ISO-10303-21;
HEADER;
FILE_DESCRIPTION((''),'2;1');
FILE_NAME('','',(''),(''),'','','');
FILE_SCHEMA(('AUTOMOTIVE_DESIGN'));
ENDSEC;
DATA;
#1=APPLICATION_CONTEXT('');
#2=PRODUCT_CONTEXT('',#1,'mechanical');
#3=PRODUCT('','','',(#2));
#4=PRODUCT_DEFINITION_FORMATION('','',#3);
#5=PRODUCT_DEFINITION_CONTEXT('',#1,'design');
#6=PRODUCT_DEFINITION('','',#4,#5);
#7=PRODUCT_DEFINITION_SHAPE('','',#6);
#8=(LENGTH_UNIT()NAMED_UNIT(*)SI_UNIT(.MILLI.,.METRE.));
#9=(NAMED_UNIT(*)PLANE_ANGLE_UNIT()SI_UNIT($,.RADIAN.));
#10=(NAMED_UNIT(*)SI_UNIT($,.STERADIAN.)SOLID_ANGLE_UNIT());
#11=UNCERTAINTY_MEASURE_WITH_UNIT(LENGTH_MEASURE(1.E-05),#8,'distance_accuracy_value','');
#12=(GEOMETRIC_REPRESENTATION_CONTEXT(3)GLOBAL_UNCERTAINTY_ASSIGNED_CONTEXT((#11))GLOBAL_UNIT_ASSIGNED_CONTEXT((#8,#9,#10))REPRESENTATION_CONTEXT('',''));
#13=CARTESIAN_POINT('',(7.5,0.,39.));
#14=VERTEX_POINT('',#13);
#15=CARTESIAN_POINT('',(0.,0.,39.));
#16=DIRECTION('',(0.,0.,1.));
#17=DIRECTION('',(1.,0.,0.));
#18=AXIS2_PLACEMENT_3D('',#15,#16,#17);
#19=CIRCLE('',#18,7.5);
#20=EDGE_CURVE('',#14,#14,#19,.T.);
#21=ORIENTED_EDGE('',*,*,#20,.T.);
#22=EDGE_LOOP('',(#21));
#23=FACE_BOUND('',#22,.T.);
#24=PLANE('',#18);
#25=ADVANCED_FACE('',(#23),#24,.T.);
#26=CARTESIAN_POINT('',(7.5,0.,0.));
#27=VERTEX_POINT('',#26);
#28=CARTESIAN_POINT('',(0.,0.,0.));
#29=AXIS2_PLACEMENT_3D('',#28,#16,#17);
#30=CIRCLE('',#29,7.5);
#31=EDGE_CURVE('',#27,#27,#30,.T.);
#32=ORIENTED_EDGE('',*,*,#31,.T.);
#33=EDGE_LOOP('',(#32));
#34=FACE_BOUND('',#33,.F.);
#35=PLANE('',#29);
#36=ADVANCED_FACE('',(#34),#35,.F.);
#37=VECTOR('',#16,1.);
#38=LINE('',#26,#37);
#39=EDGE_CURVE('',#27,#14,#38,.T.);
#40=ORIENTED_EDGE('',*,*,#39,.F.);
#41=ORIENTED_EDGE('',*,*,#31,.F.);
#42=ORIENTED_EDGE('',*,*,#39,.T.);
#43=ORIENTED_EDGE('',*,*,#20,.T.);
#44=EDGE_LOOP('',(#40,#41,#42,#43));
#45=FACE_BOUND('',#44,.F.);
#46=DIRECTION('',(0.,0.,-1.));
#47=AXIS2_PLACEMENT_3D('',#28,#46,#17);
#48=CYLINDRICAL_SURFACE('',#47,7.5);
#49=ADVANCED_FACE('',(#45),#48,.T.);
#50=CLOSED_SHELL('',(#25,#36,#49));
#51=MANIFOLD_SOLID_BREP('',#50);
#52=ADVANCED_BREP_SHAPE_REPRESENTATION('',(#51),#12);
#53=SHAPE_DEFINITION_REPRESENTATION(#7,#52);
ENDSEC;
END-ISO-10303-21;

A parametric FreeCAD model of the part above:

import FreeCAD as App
import Part
import Sketcher

V = App.Vector
Q = App.Units.Quantity

doc = App.newDocument("Part")
body = doc.addObject("PartDesign::Body", "Body")

# Sketch on XY plane
sketch1 = body.newObject("Sketcher::SketchObject", "Sketch")
sketch1.AttachmentSupport = (doc.getObject("XY_Plane"), [""])
sketch1.MapMode = "FlatFace"
sketch1.addGeometry(Part.Circle(V(0, 0, 0), V(0, 0, 1), 8), False)
sketch1.addConstraint([
    Sketcher.Constraint("Coincident", 0, 3, -1, 1),
    Sketcher.Constraint("Diameter", 0, Q("15 mm")),
])
pad1 = body.newObject("PartDesign::Pad", "Pad")
pad1.Profile = sketch1
pad1.Length = 39

doc.recompute()
